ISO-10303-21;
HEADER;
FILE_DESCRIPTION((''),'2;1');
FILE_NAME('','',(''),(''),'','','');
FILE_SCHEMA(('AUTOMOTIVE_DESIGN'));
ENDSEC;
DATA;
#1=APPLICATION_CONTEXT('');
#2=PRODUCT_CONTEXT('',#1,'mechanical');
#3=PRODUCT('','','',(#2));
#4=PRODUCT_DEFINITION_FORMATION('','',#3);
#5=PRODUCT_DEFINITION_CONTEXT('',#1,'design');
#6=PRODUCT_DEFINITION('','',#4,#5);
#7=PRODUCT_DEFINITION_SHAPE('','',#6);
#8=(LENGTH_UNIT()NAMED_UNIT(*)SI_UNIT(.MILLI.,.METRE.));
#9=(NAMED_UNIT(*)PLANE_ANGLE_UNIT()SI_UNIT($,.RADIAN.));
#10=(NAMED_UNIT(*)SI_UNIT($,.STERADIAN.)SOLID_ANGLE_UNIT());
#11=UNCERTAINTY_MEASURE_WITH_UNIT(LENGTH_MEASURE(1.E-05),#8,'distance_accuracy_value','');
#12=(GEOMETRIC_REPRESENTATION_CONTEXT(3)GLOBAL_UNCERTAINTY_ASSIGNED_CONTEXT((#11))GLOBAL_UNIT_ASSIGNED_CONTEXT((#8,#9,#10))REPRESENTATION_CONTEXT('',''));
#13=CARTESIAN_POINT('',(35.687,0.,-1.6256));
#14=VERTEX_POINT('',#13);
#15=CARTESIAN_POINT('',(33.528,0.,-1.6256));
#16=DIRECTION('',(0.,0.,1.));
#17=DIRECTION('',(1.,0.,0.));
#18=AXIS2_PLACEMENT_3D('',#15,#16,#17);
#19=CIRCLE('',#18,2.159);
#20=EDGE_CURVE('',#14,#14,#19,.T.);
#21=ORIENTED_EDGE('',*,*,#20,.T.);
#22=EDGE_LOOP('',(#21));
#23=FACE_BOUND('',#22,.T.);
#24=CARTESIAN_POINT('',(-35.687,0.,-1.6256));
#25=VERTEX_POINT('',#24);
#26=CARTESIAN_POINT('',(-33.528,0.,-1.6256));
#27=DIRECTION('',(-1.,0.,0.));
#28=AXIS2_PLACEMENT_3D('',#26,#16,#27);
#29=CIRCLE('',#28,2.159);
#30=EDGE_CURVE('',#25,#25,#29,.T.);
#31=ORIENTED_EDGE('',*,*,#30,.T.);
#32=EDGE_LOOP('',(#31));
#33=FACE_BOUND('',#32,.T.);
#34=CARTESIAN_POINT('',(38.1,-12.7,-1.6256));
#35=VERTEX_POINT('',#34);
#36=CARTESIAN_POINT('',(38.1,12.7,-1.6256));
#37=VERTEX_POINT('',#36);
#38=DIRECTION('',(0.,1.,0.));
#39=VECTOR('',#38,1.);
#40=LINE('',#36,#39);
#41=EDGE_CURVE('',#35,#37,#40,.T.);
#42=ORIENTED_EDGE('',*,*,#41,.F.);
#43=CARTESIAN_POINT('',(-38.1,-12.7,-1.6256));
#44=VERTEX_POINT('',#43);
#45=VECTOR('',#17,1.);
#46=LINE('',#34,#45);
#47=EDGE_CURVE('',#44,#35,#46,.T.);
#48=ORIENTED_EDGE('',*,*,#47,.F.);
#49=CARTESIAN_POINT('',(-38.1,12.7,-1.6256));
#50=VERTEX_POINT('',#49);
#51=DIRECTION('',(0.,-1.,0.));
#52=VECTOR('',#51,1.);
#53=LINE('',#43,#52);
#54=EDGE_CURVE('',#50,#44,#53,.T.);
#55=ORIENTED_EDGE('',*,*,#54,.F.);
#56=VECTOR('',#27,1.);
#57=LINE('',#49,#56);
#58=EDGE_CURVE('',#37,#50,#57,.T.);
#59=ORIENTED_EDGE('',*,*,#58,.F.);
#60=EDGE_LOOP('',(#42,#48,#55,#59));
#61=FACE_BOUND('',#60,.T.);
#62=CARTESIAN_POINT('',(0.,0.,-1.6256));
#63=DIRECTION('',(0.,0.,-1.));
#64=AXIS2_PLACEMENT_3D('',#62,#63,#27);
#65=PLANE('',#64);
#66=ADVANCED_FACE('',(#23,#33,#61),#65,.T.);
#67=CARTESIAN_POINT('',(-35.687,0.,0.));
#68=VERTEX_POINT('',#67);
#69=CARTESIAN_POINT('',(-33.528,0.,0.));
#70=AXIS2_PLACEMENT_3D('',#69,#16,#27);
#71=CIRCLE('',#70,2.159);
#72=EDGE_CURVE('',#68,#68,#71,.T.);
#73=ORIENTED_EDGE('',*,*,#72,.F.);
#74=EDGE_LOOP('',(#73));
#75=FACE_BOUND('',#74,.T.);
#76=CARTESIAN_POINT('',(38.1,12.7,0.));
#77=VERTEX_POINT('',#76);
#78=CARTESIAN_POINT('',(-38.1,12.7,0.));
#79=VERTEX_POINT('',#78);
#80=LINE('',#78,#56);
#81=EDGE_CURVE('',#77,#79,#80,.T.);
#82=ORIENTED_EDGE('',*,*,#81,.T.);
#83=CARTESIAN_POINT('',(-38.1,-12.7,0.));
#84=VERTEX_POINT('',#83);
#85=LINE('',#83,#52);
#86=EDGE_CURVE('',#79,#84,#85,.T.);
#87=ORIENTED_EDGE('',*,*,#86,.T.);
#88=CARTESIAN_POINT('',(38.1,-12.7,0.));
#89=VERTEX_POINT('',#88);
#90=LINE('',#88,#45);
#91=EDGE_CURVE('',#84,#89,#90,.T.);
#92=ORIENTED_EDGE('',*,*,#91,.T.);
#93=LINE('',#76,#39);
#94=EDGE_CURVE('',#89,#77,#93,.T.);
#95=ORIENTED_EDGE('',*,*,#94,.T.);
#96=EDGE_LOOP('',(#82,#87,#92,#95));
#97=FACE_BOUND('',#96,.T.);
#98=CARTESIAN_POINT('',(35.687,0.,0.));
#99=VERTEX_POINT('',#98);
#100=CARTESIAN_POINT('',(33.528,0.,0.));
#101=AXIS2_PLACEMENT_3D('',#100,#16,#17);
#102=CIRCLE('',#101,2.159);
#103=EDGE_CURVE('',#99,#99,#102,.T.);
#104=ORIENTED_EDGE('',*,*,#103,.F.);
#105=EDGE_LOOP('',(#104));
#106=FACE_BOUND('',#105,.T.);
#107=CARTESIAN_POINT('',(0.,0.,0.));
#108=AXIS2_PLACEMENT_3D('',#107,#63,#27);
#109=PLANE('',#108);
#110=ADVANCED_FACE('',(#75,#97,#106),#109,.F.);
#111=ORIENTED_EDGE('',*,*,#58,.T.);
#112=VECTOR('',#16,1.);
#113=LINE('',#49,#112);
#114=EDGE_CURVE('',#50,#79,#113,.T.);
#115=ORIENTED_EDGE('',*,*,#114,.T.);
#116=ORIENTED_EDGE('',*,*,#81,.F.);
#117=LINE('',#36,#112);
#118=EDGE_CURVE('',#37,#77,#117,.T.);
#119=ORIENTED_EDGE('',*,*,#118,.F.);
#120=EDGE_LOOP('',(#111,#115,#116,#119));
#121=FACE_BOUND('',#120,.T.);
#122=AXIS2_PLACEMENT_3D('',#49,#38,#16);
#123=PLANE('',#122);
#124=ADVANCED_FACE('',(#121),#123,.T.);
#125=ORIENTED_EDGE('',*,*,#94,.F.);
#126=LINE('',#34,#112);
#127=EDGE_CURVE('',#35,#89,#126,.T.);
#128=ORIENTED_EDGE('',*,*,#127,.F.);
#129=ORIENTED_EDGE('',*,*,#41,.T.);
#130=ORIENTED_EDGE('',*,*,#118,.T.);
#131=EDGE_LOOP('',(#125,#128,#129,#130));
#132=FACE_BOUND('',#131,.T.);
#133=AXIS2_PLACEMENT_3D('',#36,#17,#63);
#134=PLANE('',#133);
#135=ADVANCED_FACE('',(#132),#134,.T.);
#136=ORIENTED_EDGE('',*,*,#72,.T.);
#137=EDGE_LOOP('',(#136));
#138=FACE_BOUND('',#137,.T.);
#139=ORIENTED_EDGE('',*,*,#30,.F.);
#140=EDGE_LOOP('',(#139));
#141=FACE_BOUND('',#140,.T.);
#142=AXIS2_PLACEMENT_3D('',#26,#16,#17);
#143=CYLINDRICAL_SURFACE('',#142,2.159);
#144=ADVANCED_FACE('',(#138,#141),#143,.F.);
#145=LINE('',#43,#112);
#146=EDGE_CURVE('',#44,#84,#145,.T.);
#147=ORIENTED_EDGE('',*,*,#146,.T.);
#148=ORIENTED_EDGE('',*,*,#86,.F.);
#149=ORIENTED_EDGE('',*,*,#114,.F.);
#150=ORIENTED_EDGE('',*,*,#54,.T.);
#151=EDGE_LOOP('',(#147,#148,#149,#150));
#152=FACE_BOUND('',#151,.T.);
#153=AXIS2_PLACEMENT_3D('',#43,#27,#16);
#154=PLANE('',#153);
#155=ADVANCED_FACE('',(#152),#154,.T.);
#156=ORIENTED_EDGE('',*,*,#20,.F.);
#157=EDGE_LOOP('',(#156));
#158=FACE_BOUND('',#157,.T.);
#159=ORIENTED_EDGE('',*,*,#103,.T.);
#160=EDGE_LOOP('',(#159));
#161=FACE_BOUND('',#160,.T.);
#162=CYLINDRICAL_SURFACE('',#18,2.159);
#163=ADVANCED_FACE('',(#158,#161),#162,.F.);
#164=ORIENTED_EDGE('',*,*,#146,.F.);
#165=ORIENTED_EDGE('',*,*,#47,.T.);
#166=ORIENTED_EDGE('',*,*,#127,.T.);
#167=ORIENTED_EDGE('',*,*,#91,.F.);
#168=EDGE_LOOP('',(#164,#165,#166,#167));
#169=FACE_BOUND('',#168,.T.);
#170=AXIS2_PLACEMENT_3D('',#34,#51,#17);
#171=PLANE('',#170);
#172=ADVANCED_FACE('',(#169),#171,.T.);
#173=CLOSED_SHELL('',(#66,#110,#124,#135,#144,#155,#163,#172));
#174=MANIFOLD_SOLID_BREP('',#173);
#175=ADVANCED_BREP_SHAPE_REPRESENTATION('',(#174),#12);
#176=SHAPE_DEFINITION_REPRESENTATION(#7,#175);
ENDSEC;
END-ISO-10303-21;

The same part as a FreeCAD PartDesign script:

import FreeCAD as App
import Part
import Sketcher

V = App.Vector
Q = App.Units.Quantity

doc = App.newDocument("Part")
body = doc.addObject("PartDesign::Body", "Body")

# Sketch on XY plane
sketch1 = body.newObject("Sketcher::SketchObject", "Sketch")
sketch1.AttachmentSupport = (doc.getObject("XY_Plane"), [""])
sketch1.MapMode = "FlatFace"
sketch1.addGeometry([
    Part.LineSegment(V(-38, 13, 0), V(-38, -13, 0)),
    Part.LineSegment(V(-38, -13, 0), V(38, -13, 0)),
    Part.LineSegment(V(38, -13, 0), V(38, 13, 0)),
    Part.LineSegment(V(38, 13, 0), V(-38, 13, 0)),
], False)
sketch1.addConstraint([
    Sketcher.Constraint("Coincident", 0, 2, 1, 1),
    Sketcher.Constraint("Coincident", 1, 2, 2, 1),
    Sketcher.Constraint("Coincident", 2, 2, 3, 1),
    Sketcher.Constraint("Coincident", 3, 2, 0, 1),
    Sketcher.Constraint("Vertical", 0),
    Sketcher.Constraint("Horizontal", 1),
    Sketcher.Constraint("Vertical", 2),
    Sketcher.Constraint("Horizontal", 3),
    Sketcher.Constraint("Symmetric", 0, 2, 2, 2, -1, 1),
    Sketcher.Constraint("DistanceX", 1, 1, 1, 2, Q("3 in")),
    Sketcher.Constraint("DistanceY", 0, 2, 0, 1, Q("1 in")),
])
pad1 = body.newObject("PartDesign::Pad", "Pad")
pad1.Profile = sketch1
pad1.Length = Q("0.064 in")
pad1.Reversed = True

# Sketch on XY plane
sketch2 = body.newObject("Sketcher::SketchObject", "Sketch001")
sketch2.AttachmentSupport = (doc.getObject("XY_Plane"), [""])
sketch2.MapMode = "FlatFace"
sketch2.addGeometry([
    Part.Circle(V(33.5, 0, 0), V(0, 0, 1), 2.2),
    Part.Circle(V(-33.5, 0, 0), V(0, 0, 1), 2.2),
], False)
sketch2.addConstraint([
    Sketcher.Constraint("Equal", 0, 1),
    Sketcher.Constraint("Symmetric", 0, 3, 1, 3, -1, 1),
    Sketcher.Constraint("PointOnObject", 0, 3, -1),
    Sketcher.Constraint("Diameter", 0, Q("0.17 in")),
    Sketcher.Constraint("DistanceX", -1, 1, 0, 3, Q("1.32 in")),
])
pocket1 = body.newObject("PartDesign::Pocket", "Pocket")
pocket1.Profile = sketch2
pocket1.Type = "ThroughAll"

doc.recompute()
